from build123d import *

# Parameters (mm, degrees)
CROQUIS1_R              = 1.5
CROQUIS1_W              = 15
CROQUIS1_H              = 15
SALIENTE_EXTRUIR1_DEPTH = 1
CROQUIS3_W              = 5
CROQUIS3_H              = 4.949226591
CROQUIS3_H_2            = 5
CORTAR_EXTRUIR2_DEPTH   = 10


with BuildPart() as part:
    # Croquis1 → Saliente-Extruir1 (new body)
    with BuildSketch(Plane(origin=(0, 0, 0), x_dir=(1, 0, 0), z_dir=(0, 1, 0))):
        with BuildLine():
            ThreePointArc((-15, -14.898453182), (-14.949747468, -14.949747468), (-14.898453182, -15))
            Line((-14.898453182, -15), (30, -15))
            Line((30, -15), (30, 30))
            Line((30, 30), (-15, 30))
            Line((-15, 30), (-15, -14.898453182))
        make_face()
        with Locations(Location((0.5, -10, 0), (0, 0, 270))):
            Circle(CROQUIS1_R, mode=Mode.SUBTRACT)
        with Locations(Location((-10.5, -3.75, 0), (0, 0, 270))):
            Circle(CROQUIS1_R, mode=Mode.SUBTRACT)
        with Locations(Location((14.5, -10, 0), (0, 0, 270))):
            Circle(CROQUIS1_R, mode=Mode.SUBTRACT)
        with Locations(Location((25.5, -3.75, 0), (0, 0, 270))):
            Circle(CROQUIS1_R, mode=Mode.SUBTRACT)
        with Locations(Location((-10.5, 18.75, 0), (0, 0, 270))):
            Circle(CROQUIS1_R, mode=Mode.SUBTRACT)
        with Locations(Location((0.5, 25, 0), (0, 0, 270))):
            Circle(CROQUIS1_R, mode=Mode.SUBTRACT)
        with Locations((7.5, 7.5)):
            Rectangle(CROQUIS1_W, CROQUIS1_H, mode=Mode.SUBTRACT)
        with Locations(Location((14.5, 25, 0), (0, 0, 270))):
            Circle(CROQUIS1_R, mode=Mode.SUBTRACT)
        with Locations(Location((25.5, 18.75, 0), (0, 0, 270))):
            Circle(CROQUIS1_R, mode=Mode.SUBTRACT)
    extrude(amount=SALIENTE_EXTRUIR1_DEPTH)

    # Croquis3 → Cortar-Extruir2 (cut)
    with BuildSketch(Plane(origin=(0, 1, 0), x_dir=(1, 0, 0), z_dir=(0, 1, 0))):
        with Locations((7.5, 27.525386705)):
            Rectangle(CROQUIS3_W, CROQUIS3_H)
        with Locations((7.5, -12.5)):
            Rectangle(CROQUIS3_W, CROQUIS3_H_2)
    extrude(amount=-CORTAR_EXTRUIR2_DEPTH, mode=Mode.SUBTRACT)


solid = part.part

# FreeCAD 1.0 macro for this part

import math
import FreeCAD as App
import Part
import Sketcher
Q = App.Units.Quantity

doc = App.newDocument("Part")
body = doc.addObject("PartDesign::Body", "Body")

sketch1 = body.newObject("Sketcher::SketchObject", "Sketch")
sketch1.AttachmentSupport = (doc.getObject("XZ_Plane"), [""])
sketch1.MapMode = "FlatFace"
sketch1.addGeometry([
    Part.ArcOfCircle(Part.Circle(App.Vector(-12.47, 12.47, 0), App.Vector(0, 0, 1), 3.5), math.radians(133.82), math.radians(136.18)),
    Part.LineSegment(App.Vector(-14.9, 15, 0), App.Vector(30, 15, 0)),
    Part.LineSegment(App.Vector(30, 15, 0), App.Vector(30, -30, 0)),
    Part.LineSegment(App.Vector(30, -30, 0), App.Vector(-15, -30, 0)),
    Part.LineSegment(App.Vector(-15, -30, 0), App.Vector(-15, 14.9, 0)),
    Part.Circle(App.Vector(-10.5, 3.75, 0), App.Vector(0, 0, 1), 1.5),
    Part.Circle(App.Vector(0.5, 10, 0), App.Vector(0, 0, 1), 1.5),
    Part.Circle(App.Vector(14.5, 10, 0), App.Vector(0, 0, 1), 1.5),
    Part.Circle(App.Vector(25.5, 3.75, 0), App.Vector(0, 0, 1), 1.5),
    Part.Circle(App.Vector(-10.5, -18.75, 0), App.Vector(0, 0, 1), 1.5),
    Part.Circle(App.Vector(0.5, -25, 0), App.Vector(0, 0, 1), 1.5),
    Part.LineSegment(App.Vector(15, 0, 0), App.Vector(0, 0, 0)),
    Part.LineSegment(App.Vector(0, 0, 0), App.Vector(0, -15, 0)),
    Part.LineSegment(App.Vector(0, -15, 0), App.Vector(15, -15, 0)),
    Part.LineSegment(App.Vector(15, -15, 0), App.Vector(15, 0, 0)),
    Part.Circle(App.Vector(14.5, -25, 0), App.Vector(0, 0, 1), 1.5),
    Part.Circle(App.Vector(25.5, -18.75, 0), App.Vector(0, 0, 1), 1.5),
], False)
sketch1.addConstraint([
    Sketcher.Constraint("Coincident", 0, 1, 1, 1),
    Sketcher.Constraint("Coincident", 1, 2, 2, 1),
    Sketcher.Constraint("Coincident", 2, 2, 3, 1),
    Sketcher.Constraint("Coincident", 3, 2, 4, 1),
    Sketcher.Constraint("Coincident", 4, 2, 0, 2),
    Sketcher.Constraint("Coincident", 11, 2, 12, 1),
    Sketcher.Constraint("Coincident", 12, 2, 13, 1),
    Sketcher.Constraint("Coincident", 13, 2, 14, 1),
    Sketcher.Constraint("Coincident", 14, 2, 11, 1),
    Sketcher.Constraint("Horizontal", 1),
    Sketcher.Constraint("Vertical", 2),
    Sketcher.Constraint("Horizontal", 3),
    Sketcher.Constraint("Vertical", 4),
    Sketcher.Constraint("Horizontal", 11),
    Sketcher.Constraint("Vertical", 12),
    Sketcher.Constraint("Horizontal", 13),
    Sketcher.Constraint("Vertical", 14),
    Sketcher.Constraint("Coincident", 11, 2, -1, 1),
    Sketcher.Constraint("Equal", 5, 6),
    Sketcher.Constraint("Equal", 6, 7),
    Sketcher.Constraint("Equal", 7, 8),
    Sketcher.Constraint("Equal", 8, 9),
    Sketcher.Constraint("Equal", 9, 10),
    Sketcher.Constraint("Equal", 10, 15),
    Sketcher.Constraint("Equal", 15, 16),
    Sketcher.Constraint("Horizontal", 6, 3, 7, 3),
    Sketcher.Constraint("Horizontal", 5, 3, 8, 3),
    Sketcher.Constraint("Horizontal", 10, 3, 15, 3),
    Sketcher.Constraint("Horizontal", 9, 3, 16, 3),
    Sketcher.Constraint("Vertical", 5, 3, 9, 3),
    Sketcher.Constraint("Vertical", 6, 3, 10, 3),
    Sketcher.Constraint("Vertical", 7, 3, 15, 3),
    Sketcher.Constraint("Vertical", 8, 3, 16, 3),
    Sketcher.Constraint("Equal", 3, 2),
    Sketcher.Constraint("Equal", 1, 4),
    Sketcher.Constraint("Equal", 13, 12),
    Sketcher.Constraint("Diameter", 5, Q("3 mm")),
    Sketcher.Constraint("Radius", 0, Q("3.500001 mm")),
    Sketcher.Constraint("DistanceX", 3, 2, 3, 1, Q("45 mm")),
    Sketcher.Constraint("DistanceX", 11, 2, 11, 1, Q("15 mm")),
    Sketcher.Constraint("DistanceY", -1, 1, 6, 3, Q("10 mm")),
    Sketcher.Constraint("DistanceY", 10, 3, -1, 1, Q("25 mm")),
    Sketcher.Constraint("DistanceY", -1, 1, 0, 1, Q("15 mm")),
    Sketcher.Constraint("DistanceX", -1, 1, 1, 2, Q("30 mm")),
    Sketcher.Constraint("DistanceX", 5, 3, 6, 3, Q("11 mm")),
    Sketcher.Constraint("DistanceX", 6, 3, 7, 3, Q("14 mm")),
    Sketcher.Constraint("DistanceX", 7, 3, 8, 3, Q("11 mm")),
    Sketcher.Constraint("DistanceX", 5, 3, -1, 1, Q("10.5 mm")),
    Sketcher.Constraint("DistanceY", 9, 3, 5, 3, Q("22.5 mm")),
    Sketcher.Constraint("DistanceY", -1, 1, 5, 3, Q("3.75 mm")),
    Sketcher.Constraint("DistanceX", 1, 1, 1, 2, Q("44.898453 mm")),
])
pad1 = body.newObject("PartDesign::Pad", "Pad")
pad1.Profile = sketch1
pad1.Length = 1
pad1.Reversed = True

sketch2 = body.newObject("Sketcher::SketchObject", "Sketch001")
sketch2.AttachmentSupport = (doc.getObject("XZ_Plane"), [""])
sketch2.MapMode = "FlatFace"
sketch2.AttachmentOffset = App.Placement(App.Vector(0, 0, -1), App.Rotation())
sketch2.addGeometry([
    Part.LineSegment(App.Vector(5, -30, 0), App.Vector(5, -25.1, 0)),
    Part.LineSegment(App.Vector(5, -25.1, 0), App.Vector(10, -25.1, 0)),
    Part.LineSegment(App.Vector(10, -25.1, 0), App.Vector(10, -30, 0)),
    Part.LineSegment(App.Vector(10, -30, 0), App.Vector(5, -30, 0)),
    Part.LineSegment(App.Vector(5, 10, 0), App.Vector(5, 15, 0)),
    Part.LineSegment(App.Vector(5, 15, 0), App.Vector(10, 15, 0)),
    Part.LineSegment(App.Vector(10, 15, 0), App.Vector(10, 10, 0)),
    Part.LineSegment(App.Vector(10, 10, 0), App.Vector(5, 10, 0)),
], False)
sketch2.addConstraint([
    Sketcher.Constraint("Coincident", 0, 2, 1, 1),
    Sketcher.Constraint("Coincident", 1, 2, 2, 1),
    Sketcher.Constraint("Coincident", 2, 2, 3, 1),
    Sketcher.Constraint("Coincident", 3, 2, 0, 1),
    Sketcher.Constraint("Coincident", 4, 2, 5, 1),
    Sketcher.Constraint("Coincident", 5, 2, 6, 1),
    Sketcher.Constraint("Coincident", 6, 2, 7, 1),
    Sketcher.Constraint("Coincident", 7, 2, 4, 1),
    Sketcher.Constraint("Vertical", 0),
    Sketcher.Constraint("Horizontal", 1),
    Sketcher.Constraint("Vertical", 2),
    Sketcher.Constraint("Horizontal", 3),
    Sketcher.Constraint("Vertical", 4),
    Sketcher.Constraint("Horizontal", 5),
    Sketcher.Constraint("Vertical", 6),
    Sketcher.Constraint("Horizontal", 7),
    Sketcher.Constraint("Vertical", 3, 2, 4, 2),
    Sketcher.Constraint("Vertical", 2, 2, 5, 2),
    Sketcher.Constraint("Equal", 7, 4),
    Sketcher.Constraint("DistanceX", 1, 1, 1, 2, Q("5 mm")),
    Sketcher.Constraint("DistanceX", -1, 1, 0, 2, Q("5 mm")),
    Sketcher.Constraint("DistanceY", 2, 2, -1, 1, Q("30 mm")),
    Sketcher.Constraint("DistanceY", -1, 1, 4, 2, Q("15 mm")),
    Sketcher.Constraint("DistanceY", 0, 1, 0, 2, Q("4.949227 mm")),
])
pocket1 = body.newObject("PartDesign::Pocket", "Pocket")
pocket1.Profile = sketch2
pocket1.Length = 10
pocket1.Reversed = True

doc.recompute()
